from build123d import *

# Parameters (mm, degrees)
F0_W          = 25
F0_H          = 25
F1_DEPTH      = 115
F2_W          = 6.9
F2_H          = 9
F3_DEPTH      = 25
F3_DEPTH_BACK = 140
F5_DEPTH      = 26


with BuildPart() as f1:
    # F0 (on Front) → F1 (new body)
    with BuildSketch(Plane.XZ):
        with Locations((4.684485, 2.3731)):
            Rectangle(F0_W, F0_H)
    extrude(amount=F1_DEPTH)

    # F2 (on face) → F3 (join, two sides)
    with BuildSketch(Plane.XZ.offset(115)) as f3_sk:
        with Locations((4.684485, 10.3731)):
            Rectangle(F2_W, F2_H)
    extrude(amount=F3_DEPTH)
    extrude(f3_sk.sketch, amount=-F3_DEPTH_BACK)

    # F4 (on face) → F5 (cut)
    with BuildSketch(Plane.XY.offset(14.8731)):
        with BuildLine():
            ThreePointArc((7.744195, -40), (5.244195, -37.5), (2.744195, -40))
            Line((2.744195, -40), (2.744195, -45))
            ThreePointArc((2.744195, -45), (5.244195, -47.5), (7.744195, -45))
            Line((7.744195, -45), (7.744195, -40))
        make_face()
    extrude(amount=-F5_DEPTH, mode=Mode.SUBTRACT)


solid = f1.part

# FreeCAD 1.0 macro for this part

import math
import FreeCAD as App
import Part
import Sketcher
Q = App.Units.Quantity

doc = App.newDocument("Part")
body = doc.addObject("PartDesign::Body", "Body")

# Sketch on XZ plane
sketch1 = body.newObject("Sketcher::SketchObject", "Sketch")
sketch1.AttachmentSupport = (doc.getObject("XZ_Plane"), [""])
sketch1.MapMode = "FlatFace"
sketch1.addGeometry(Part.LineSegment(App.Vector(-8, 15, 0), App.Vector(-8, -10, 0)), False)
sketch1.addGeometry(Part.LineSegment(App.Vector(-8, -10, 0), App.Vector(17, -10, 0)), False)
sketch1.addGeometry(Part.LineSegment(App.Vector(17, -10, 0), App.Vector(17, 15, 0)), False)
sketch1.addGeometry(Part.LineSegment(App.Vector(17, 15, 0), App.Vector(-8, 15, 0)), False)
sketch1.addConstraint(Sketcher.Constraint("Coincident", 0, 2, 1, 1))
sketch1.addConstraint(Sketcher.Constraint("Coincident", 1, 2, 2, 1))
sketch1.addConstraint(Sketcher.Constraint("Coincident", 2, 2, 3, 1))
sketch1.addConstraint(Sketcher.Constraint("Coincident", 3, 2, 0, 1))
sketch1.addConstraint(Sketcher.Constraint("Vertical", 0))
sketch1.addConstraint(Sketcher.Constraint("Horizontal", 1))
sketch1.addConstraint(Sketcher.Constraint("Vertical", 2))
sketch1.addConstraint(Sketcher.Constraint("Horizontal", 3))
sketch1.addConstraint(Sketcher.Constraint("Equal", 3, 0))
sketch1.addConstraint(Sketcher.Constraint("DistanceX", 1, 1, 1, 2, Q("25 mm")))
sketch1.addConstraint(Sketcher.Constraint("DistanceY", 0, 2, -1, 1, Q("10.1269 mm")))
sketch1.addConstraint(Sketcher.Constraint("DistanceX", 0, 2, -1, 1, Q("7.815515 mm")))
pad1 = body.newObject("PartDesign::Pad", "Pad")
pad1.Profile = sketch1
pad1.Length = 115

# Sketch on XZ plane
sketch2 = body.newObject("Sketcher::SketchObject", "Sketch001")
sketch2.AttachmentSupport = (doc.getObject("XZ_Plane"), [""])
sketch2.MapMode = "FlatFace"
sketch2.AttachmentOffset = App.Placement(App.Vector(0, 0, 115), App.Rotation())
sketch2.addGeometry(Part.LineSegment(App.Vector(1, 15, 0), App.Vector(1, 6, 0)), False)
sketch2.addGeometry(Part.LineSegment(App.Vector(1, 6, 0), App.Vector(8, 6, 0)), False)
sketch2.addGeometry(Part.LineSegment(App.Vector(8, 6, 0), App.Vector(8, 15, 0)), False)
sketch2.addGeometry(Part.LineSegment(App.Vector(8, 15, 0), App.Vector(1, 15, 0)), False)
sketch2.addConstraint(Sketcher.Constraint("Coincident", 0, 2, 1, 1))
sketch2.addConstraint(Sketcher.Constraint("Coincident", 1, 2, 2, 1))
sketch2.addConstraint(Sketcher.Constraint("Coincident", 2, 2, 3, 1))
sketch2.addConstraint(Sketcher.Constraint("Coincident", 3, 2, 0, 1))
sketch2.addConstraint(Sketcher.Constraint("Vertical", 0))
sketch2.addConstraint(Sketcher.Constraint("Horizontal", 1))
sketch2.addConstraint(Sketcher.Constraint("Vertical", 2))
sketch2.addConstraint(Sketcher.Constraint("Horizontal", 3))
sketch2.addConstraint(Sketcher.Constraint("DistanceY", 0, 2, 0, 1, Q("9 mm")))
sketch2.addConstraint(Sketcher.Constraint("DistanceX", 1, 1, 1, 2, Q("6.9 mm")))
sketch2.addConstraint(Sketcher.Constraint("DistanceY", -1, 1, 0, 2, Q("5.8731 mm")))
sketch2.addConstraint(Sketcher.Constraint("DistanceX", -1, 1, 0, 2, Q("1.234485 mm")))
pad2 = body.newObject("PartDesign::Pad", "Pad001")
pad2.Profile = sketch2
pad2.Type = "TwoLengths"
pad2.Length = 25
pad2.Length2 = 140

# Sketch on XY plane
sketch3 = body.newObject("Sketcher::SketchObject", "Sketch002")
sketch3.AttachmentSupport = (doc.getObject("XY_Plane"), [""])
sketch3.MapMode = "FlatFace"
sketch3.AttachmentOffset = App.Placement(App.Vector(0, 0, 14.8731), App.Rotation())
sketch3.addGeometry(Part.ArcOfCircle(Part.Circle(App.Vector(5.2, -40, 0), App.Vector(0, 0, 1), 2.5), math.radians(0), math.radians(180)), False)
sketch3.addGeometry(Part.LineSegment(App.Vector(2.7, -40, 0), App.Vector(2.7, -45, 0)), False)
sketch3.addGeometry(Part.ArcOfCircle(Part.Circle(App.Vector(5.2, -45, 0), App.Vector(0, 0, 1), 2.5), math.radians(180), math.radians(360)), False)
sketch3.addGeometry(Part.LineSegment(App.Vector(7.7, -45, 0), App.Vector(7.7, -40, 0)), False)
sketch3.addConstraint(Sketcher.Constraint("Tangent", 0, 2, 1, 1))
sketch3.addConstraint(Sketcher.Constraint("Tangent", 1, 2, 2, 1))
sketch3.addConstraint(Sketcher.Constraint("Tangent", 2, 2, 3, 1))
sketch3.addConstraint(Sketcher.Constraint("Tangent", 3, 2, 0, 1))
sketch3.addConstraint(Sketcher.Constraint("Vertical", 1))
sketch3.addConstraint(Sketcher.Constraint("Vertical", 3))
sketch3.addConstraint(Sketcher.Constraint("Radius", 0, Q("2.5 mm")))
sketch3.addConstraint(Sketcher.Constraint("DistanceY", 1, 2, 1, 1, Q("5 mm")))
sketch3.addConstraint(Sketcher.Constraint("DistanceY", 0, 3, -1, 1, Q("40 mm")))
sketch3.addConstraint(Sketcher.Constraint("DistanceX", -1, 1, 0, 3, Q("5.244195 mm")))
pocket1 = body.newObject("PartDesign::Pocket", "Pocket")
pocket1.Profile = sketch3
pocket1.Length = 26

doc.recompute()
